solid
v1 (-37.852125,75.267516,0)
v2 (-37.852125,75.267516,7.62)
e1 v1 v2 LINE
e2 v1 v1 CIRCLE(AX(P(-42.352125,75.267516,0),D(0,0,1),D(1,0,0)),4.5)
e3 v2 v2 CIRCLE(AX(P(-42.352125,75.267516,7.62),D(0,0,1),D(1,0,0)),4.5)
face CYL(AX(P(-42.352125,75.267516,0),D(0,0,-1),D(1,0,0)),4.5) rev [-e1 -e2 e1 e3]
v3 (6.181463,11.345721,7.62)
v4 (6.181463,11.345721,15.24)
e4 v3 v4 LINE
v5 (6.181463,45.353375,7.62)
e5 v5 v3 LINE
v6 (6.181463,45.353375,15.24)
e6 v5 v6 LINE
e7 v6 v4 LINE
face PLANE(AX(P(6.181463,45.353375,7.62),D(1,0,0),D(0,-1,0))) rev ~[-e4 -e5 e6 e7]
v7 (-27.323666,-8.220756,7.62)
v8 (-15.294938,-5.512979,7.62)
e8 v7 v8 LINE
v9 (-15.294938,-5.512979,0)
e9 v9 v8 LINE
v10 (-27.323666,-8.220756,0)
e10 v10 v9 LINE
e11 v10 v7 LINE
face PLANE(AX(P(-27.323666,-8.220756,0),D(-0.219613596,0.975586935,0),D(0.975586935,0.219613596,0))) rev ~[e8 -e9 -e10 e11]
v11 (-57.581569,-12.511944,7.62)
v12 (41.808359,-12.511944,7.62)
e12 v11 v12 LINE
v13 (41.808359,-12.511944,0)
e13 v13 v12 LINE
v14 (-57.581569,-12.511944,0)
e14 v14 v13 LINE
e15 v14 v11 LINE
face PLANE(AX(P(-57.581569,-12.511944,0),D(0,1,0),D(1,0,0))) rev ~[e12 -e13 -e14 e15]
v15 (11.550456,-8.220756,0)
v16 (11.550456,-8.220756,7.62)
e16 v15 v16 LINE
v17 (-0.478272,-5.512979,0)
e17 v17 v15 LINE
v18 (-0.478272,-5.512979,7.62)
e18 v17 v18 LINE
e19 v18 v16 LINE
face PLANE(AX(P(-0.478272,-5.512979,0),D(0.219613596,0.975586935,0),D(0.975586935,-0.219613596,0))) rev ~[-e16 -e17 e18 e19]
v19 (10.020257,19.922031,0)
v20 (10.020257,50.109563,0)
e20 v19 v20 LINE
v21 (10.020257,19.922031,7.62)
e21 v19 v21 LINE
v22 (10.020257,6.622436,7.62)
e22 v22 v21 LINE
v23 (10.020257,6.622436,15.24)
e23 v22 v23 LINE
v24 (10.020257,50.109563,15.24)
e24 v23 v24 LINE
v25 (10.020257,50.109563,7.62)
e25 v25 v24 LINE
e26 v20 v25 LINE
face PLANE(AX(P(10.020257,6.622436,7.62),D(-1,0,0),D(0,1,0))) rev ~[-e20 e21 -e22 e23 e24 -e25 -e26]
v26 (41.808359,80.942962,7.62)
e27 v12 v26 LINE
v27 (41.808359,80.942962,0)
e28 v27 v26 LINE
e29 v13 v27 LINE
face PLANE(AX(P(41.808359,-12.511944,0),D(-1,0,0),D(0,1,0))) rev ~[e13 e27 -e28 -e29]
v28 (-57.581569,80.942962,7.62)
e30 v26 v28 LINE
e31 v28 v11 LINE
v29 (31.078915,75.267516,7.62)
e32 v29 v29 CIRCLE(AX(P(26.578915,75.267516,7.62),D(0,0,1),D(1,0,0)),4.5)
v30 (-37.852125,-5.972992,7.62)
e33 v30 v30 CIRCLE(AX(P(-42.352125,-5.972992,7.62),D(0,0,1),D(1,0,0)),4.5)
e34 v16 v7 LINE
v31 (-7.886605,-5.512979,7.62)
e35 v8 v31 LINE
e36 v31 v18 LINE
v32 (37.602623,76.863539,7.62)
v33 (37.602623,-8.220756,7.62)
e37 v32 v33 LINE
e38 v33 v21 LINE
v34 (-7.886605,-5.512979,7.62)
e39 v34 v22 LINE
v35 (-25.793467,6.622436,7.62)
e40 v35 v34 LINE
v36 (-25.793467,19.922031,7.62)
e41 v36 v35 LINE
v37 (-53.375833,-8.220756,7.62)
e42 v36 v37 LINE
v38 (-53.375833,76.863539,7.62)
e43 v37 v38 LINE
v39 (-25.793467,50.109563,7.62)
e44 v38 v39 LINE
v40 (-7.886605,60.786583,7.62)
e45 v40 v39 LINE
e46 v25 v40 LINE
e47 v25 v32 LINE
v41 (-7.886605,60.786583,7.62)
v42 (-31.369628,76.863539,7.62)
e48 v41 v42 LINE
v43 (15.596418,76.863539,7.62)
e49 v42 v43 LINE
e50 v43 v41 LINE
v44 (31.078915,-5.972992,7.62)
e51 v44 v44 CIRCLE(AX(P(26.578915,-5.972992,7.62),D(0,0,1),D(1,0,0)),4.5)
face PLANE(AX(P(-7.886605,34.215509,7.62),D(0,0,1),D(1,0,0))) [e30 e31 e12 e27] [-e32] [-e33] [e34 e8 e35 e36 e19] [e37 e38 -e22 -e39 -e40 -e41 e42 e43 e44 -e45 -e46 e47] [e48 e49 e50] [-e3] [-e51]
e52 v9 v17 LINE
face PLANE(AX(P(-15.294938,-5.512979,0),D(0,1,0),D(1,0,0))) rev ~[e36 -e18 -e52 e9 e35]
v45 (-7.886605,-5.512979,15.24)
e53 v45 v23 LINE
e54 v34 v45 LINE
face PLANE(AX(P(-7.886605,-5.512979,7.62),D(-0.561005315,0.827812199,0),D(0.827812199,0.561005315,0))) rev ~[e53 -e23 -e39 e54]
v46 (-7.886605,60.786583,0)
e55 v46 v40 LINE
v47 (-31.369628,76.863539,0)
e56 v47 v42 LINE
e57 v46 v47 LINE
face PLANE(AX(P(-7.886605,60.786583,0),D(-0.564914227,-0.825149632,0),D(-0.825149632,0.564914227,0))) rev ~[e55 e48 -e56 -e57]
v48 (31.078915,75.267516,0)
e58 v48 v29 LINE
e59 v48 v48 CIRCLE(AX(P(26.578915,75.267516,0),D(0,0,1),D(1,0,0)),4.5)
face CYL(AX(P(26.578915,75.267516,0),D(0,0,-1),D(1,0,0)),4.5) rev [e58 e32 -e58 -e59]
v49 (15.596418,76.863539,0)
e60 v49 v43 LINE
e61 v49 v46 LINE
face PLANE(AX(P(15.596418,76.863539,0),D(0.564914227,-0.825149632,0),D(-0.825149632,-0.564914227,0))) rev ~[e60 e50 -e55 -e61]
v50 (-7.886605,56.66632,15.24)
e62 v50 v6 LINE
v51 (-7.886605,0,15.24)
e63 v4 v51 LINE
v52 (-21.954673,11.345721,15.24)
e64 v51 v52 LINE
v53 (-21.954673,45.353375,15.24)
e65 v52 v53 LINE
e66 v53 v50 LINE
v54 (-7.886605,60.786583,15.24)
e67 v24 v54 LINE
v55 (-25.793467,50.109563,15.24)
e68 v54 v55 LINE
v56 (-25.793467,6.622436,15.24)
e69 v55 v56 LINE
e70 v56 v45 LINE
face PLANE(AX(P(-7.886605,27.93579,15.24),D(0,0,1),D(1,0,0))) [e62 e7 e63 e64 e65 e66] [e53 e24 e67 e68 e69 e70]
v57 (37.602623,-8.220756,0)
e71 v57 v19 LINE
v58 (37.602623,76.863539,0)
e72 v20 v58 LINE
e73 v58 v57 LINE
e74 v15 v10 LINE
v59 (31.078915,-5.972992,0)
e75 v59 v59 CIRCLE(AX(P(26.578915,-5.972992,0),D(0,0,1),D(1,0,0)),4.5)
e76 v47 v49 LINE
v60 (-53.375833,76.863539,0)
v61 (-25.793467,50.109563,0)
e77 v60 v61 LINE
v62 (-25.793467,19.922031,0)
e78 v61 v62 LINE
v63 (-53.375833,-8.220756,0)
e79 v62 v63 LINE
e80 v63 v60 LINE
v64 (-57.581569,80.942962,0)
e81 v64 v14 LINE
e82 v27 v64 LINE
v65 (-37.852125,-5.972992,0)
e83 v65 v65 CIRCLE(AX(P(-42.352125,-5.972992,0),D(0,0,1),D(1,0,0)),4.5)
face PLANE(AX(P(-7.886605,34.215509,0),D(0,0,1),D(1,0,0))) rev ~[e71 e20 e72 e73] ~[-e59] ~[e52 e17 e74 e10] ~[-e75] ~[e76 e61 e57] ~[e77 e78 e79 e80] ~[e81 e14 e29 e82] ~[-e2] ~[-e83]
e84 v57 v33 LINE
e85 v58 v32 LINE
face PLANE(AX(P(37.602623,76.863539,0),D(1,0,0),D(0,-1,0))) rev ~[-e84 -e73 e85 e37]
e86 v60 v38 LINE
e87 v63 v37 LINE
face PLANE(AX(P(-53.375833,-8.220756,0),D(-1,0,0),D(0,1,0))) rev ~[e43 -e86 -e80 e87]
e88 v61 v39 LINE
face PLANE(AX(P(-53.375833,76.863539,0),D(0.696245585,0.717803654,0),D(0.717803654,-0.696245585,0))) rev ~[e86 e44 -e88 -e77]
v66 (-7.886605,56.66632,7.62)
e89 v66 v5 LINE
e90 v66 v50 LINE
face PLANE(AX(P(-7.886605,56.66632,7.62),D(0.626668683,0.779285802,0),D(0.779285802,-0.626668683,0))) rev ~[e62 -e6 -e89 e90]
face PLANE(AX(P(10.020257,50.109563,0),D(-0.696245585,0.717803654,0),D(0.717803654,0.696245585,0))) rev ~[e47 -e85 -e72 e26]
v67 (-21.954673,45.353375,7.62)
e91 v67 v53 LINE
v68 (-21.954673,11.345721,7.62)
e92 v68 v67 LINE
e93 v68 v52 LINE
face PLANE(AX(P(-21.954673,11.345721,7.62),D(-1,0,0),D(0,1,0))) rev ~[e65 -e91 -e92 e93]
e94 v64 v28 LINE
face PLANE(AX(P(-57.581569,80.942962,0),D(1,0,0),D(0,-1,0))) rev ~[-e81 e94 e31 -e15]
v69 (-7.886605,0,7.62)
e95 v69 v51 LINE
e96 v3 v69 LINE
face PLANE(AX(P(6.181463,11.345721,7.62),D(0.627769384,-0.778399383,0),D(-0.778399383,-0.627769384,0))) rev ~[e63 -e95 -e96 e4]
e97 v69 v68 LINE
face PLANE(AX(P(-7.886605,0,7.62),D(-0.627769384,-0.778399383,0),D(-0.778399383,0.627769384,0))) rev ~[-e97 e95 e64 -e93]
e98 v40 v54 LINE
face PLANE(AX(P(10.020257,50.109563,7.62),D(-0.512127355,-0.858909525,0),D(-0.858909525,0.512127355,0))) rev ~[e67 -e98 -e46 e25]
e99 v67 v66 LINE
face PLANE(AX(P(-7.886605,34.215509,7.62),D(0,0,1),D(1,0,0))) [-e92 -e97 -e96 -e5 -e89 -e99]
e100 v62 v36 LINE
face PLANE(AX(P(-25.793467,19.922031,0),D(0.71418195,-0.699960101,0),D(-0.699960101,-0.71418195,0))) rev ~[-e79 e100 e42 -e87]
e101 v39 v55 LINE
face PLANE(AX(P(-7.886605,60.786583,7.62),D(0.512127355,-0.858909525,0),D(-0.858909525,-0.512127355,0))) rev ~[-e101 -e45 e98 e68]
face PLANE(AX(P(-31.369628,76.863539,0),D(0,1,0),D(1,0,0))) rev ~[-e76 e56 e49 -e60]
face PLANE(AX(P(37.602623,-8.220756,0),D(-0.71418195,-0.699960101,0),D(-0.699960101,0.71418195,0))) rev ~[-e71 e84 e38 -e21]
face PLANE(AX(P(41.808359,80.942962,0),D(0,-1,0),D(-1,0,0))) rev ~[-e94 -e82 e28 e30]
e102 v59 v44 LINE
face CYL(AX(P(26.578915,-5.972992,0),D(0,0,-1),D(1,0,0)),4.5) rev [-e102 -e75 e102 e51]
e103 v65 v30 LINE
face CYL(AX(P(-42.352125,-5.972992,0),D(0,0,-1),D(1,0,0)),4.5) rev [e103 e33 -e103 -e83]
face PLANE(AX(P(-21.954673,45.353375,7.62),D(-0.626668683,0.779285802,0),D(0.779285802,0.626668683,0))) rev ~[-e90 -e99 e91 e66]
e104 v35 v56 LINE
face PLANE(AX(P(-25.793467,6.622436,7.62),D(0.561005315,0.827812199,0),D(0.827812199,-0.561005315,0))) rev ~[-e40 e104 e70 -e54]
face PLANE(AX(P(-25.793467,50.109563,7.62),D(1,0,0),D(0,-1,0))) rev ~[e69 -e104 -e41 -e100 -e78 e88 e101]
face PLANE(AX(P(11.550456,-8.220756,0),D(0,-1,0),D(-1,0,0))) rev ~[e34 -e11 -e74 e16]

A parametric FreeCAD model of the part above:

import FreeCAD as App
import Part
import Sketcher

V = App.Vector
Q = App.Units.Quantity

doc = App.newDocument("Part")
body = doc.addObject("PartDesign::Body", "Body")

sketch1 = body.newObject("Sketcher::SketchObject", "Sketch")
sketch1.AttachmentSupport = (doc.getObject("XY_Plane"), [""])
sketch1.MapMode = "FlatFace"
sketch1.addGeometry([
    Part.LineSegment(V(41.8, -12.5, 0), V(41.8, 80.9, 0)),
    Part.LineSegment(V(41.8, 80.9, 0), V(-57.6, 80.9, 0)),
    Part.LineSegment(V(-57.6, 80.9, 0), V(-57.6, -12.5, 0)),
    Part.LineSegment(V(-57.6, -12.5, 0), V(41.8, -12.5, 0)),
    Part.Circle(V(-42.4, -6, 0), V(0, 0, 1), 4.5),
    Part.LineSegment(V(-25.8, 50.1, 0), V(-25.8, 19.9, 0)),
    Part.LineSegment(V(-25.8, 19.9, 0), V(-53.4, -8.2, 0)),
    Part.LineSegment(V(-53.4, -8.2, 0), V(-53.4, 76.9, 0)),
    Part.LineSegment(V(-53.4, 76.9, 0), V(-25.8, 50.1, 0)),
    Part.LineSegment(V(11.6, -8.2, 0), V(-27.3, -8.2, 0)),
    Part.LineSegment(V(-27.3, -8.2, 0), V(-15.3, -5.5, 0)),
    Part.LineSegment(V(-15.3, -5.5, 0), V(-0.5, -5.5, 0)),
    Part.LineSegment(V(-0.5, -5.5, 0), V(11.6, -8.2, 0)),
    Part.Circle(V(26.6, -6, 0), V(0, 0, 1), 4.5),
    Part.LineSegment(V(37.6, 76.9, 0), V(37.6, -8.2, 0)),
    Part.LineSegment(V(37.6, -8.2, 0), V(10, 19.9, 0)),
    Part.LineSegment(V(10, 19.9, 0), V(10, 50.1, 0)),
    Part.LineSegment(V(10, 50.1, 0), V(37.6, 76.9, 0)),
    Part.Circle(V(-42.4, 75.3, 0), V(0, 0, 1), 4.5),
    Part.LineSegment(V(-7.9, 60.8, 0), V(-31.4, 76.9, 0)),
    Part.LineSegment(V(-31.4, 76.9, 0), V(15.6, 76.9, 0)),
    Part.LineSegment(V(15.6, 76.9, 0), V(-7.9, 60.8, 0)),
    Part.Circle(V(26.6, 75.3, 0), V(0, 0, 1), 4.5),
], False)
sketch1.addConstraint([
    Sketcher.Constraint("Coincident", 0, 2, 1, 1),
    Sketcher.Constraint("Coincident", 1, 2, 2, 1),
    Sketcher.Constraint("Coincident", 2, 2, 3, 1),
    Sketcher.Constraint("Coincident", 3, 2, 0, 1),
    Sketcher.Constraint("Coincident", 5, 2, 6, 1),
    Sketcher.Constraint("Coincident", 6, 2, 7, 1),
    Sketcher.Constraint("Coincident", 7, 2, 8, 1),
    Sketcher.Constraint("Coincident", 8, 2, 5, 1),
    Sketcher.Constraint("Coincident", 9, 2, 10, 1),
    Sketcher.Constraint("Coincident", 10, 2, 11, 1),
    Sketcher.Constraint("Coincident", 11, 2, 12, 1),
    Sketcher.Constraint("Coincident", 12, 2, 9, 1),
    Sketcher.Constraint("Coincident", 14, 2, 15, 1),
    Sketcher.Constraint("Coincident", 15, 2, 16, 1),
    Sketcher.Constraint("Coincident", 16, 2, 17, 1),
    Sketcher.Constraint("Coincident", 17, 2, 14, 1),
    Sketcher.Constraint("Coincident", 19, 2, 20, 1),
    Sketcher.Constraint("Coincident", 20, 2, 21, 1),
    Sketcher.Constraint("Coincident", 21, 2, 19, 1),
    Sketcher.Constraint("Vertical", 0),
    Sketcher.Constraint("Horizontal", 1),
    Sketcher.Constraint("Vertical", 2),
    Sketcher.Constraint("Horizontal", 3),
    Sketcher.Constraint("Vertical", 5),
    Sketcher.Constraint("Vertical", 7),
    Sketcher.Constraint("Horizontal", 9),
    Sketcher.Constraint("Horizontal", 11),
    Sketcher.Constraint("Vertical", 14),
    Sketcher.Constraint("Vertical", 16),
    Sketcher.Constraint("Horizontal", 20),
    Sketcher.Constraint("Equal", 4, 13),
    Sketcher.Constraint("Equal", 13, 18),
    Sketcher.Constraint("Equal", 18, 22),
    Sketcher.Constraint("Horizontal", 4, 3, 13, 3),
    Sketcher.Constraint("Horizontal", 18, 3, 22, 3),
    Sketcher.Constraint("Horizontal", 6, 2, 9, 2),
    Sketcher.Constraint("Horizontal", 12, 2, 14, 2),
    Sketcher.Constraint("Horizontal", 5, 2, 15, 2),
    Sketcher.Constraint("Horizontal", 8, 2, 16, 2),
    Sketcher.Constraint("Horizontal", 7, 2, 17, 2),
    Sketcher.Constraint("Horizontal", 17, 2, 19, 2),
    Sketcher.Constraint("Vertical", 4, 3, 18, 3),
    Sketcher.Constraint("Vertical", 13, 3, 22, 3),
    Sketcher.Constraint("Equal", 10, 12),
    Sketcher.Constraint("Equal", 6, 15),
    Sketcher.Constraint("Equal", 19, 21),
    Sketcher.Constraint("Diameter", 4, Q("9 mm")),
    Sketcher.Constraint("DistanceX", 9, 2, 9, 1, Q("38.874122 mm")),
    Sketcher.Constraint("DistanceY", 8, 2, 1, 2, Q("30.833398 mm")),
    Sketcher.Constraint("DistanceX", 9, 2, 5, 2, Q("1.530199 mm")),
    Sketcher.Constraint("DistanceX", 15, 2, 12, 2, Q("1.530199 mm")),
    Sketcher.Constraint("Distance", 8, Q("38.426061 mm")),
    Sketcher.Constraint("Distance", 19, Q("28.459109 mm")),
    Sketcher.Constraint("DistanceX", 1, 2, 1, 1, Q("99.389928 mm")),
    Sketcher.Constraint("DistanceX", 11, 1, 11, 2, Q("14.816666 mm")),
    Sketcher.Constraint("DistanceX", 20, 1, 20, 2, Q("46.966047 mm")),
    Sketcher.Constraint("DistanceY", 0, 1, 0, 2, Q("93.454906 mm")),
    Sketcher.Constraint("DistanceY", 5, 2, 5, 1, Q("30.187532 mm")),
    Sketcher.Constraint("DistanceY", 7, 1, 7, 2, Q("85.084295 mm")),
    Sketcher.Constraint("DistanceX", -1, 1, 0, 2, Q("41.808359 mm")),
    Sketcher.Constraint("DistanceY", -1, 1, 0, 2, Q("80.942962 mm")),
    Sketcher.Constraint("DistanceY", -1, 1, 7, 2, Q("76.863539 mm")),
    Sketcher.Constraint("DistanceX", 10, 2, -1, 1, Q("15.294938 mm")),
    Sketcher.Constraint("DistanceY", 10, 2, -1, 1, Q("5.512979 mm")),
    Sketcher.Constraint("DistanceX", 19, 2, -1, 1, Q("31.369628 mm")),
    Sketcher.Constraint("DistanceX", 4, 3, 13, 3, Q("68.93104 mm")),
    Sketcher.Constraint("DistanceY", 4, 3, 18, 3, Q("81.240508 mm")),
    Sketcher.Constraint("DistanceY", 2, 2, 18, 3, Q("87.77946 mm")),
    Sketcher.Constraint("DistanceX", 4, 3, 5, 2, Q("16.558658 mm")),
])
pad1 = body.newObject("PartDesign::Pad", "Pad")
pad1.Profile = sketch1
pad1.Length = 7.62

sketch2 = body.newObject("Sketcher::SketchObject", "Sketch001")
sketch2.AttachmentSupport = (doc.getObject("XY_Plane"), [""])
sketch2.MapMode = "FlatFace"
sketch2.AttachmentOffset = App.Placement(V(0, 0, 7.62), App.Rotation())
sketch2.addGeometry([
    Part.LineSegment(V(-8, 61, 0), V(-26, 50, 0)),
    Part.LineSegment(V(-26, 50, 0), V(-26, 7, 0)),
    Part.LineSegment(V(-26, 7, 0), V(-8, -6, 0)),
    Part.LineSegment(V(-8, -6, 0), V(10, 7, 0)),
    Part.LineSegment(V(10, 7, 0), V(10, 50, 0)),
    Part.LineSegment(V(10, 50, 0), V(-8, 61, 0)),
    Part.LineSegment(V(-22, 11, 0), V(-22, 45, 0)),
    Part.LineSegment(V(-22, 45, 0), V(-8, 57, 0)),
    Part.LineSegment(V(-8, 57, 0), V(6, 45, 0)),
    Part.LineSegment(V(6, 45, 0), V(6, 11, 0)),
    Part.LineSegment(V(6, 11, 0), V(-8, 0, 0)),
    Part.LineSegment(V(-8, 0, 0), V(-22, 11, 0)),
], False)
sketch2.addConstraint([
    Sketcher.Constraint("Coincident", 0, 2, 1, 1),
    Sketcher.Constraint("Coincident", 1, 2, 2, 1),
    Sketcher.Constraint("Coincident", 2, 2, 3, 1),
    Sketcher.Constraint("Coincident", 3, 2, 4, 1),
    Sketcher.Constraint("Coincident", 4, 2, 5, 1),
    Sketcher.Constraint("Coincident", 5, 2, 0, 1),
    Sketcher.Constraint("Coincident", 6, 2, 7, 1),
    Sketcher.Constraint("Coincident", 7, 2, 8, 1),
    Sketcher.Constraint("Coincident", 8, 2, 9, 1),
    Sketcher.Constraint("Coincident", 9, 2, 10, 1),
    Sketcher.Constraint("Coincident", 10, 2, 11, 1),
    Sketcher.Constraint("Coincident", 11, 2, 6, 1),
    Sketcher.Constraint("Vertical", 1),
    Sketcher.Constraint("Vertical", 4),
    Sketcher.Constraint("Vertical", 6),
    Sketcher.Constraint("Vertical", 9),
    Sketcher.Constraint("PointOnObject", 10, 2, -1),
    Sketcher.Constraint("Horizontal", 1, 2, 3, 2),
    Sketcher.Constraint("Horizontal", 0, 2, 4, 2),
    Sketcher.Constraint("Horizontal", 6, 2, 8, 2),
    Sketcher.Constraint("Horizontal", 9, 2, 11, 2),
    Sketcher.Constraint("Vertical", 2, 2, 5, 2),
    Sketcher.Constraint("Vertical", 5, 2, 7, 2),
    Sketcher.Constraint("Vertical", 7, 2, 10, 2),
    Sketcher.Constraint("Equal", 2, 3),
    Sketcher.Constraint("Equal", 7, 8),
    Sketcher.Constraint("DistanceY", 2, 2, 9, 2, Q("16.8587 mm")),
    Sketcher.Constraint("Distance", 2, Q("21.631551 mm")),
    Sketcher.Constraint("Distance", 10, Q("18.073071 mm")),
    Sketcher.Constraint("DistanceY", 1, 2, 1, 1, Q("43.487127 mm")),
    Sketcher.Constraint("DistanceY", 6, 1, 6, 2, Q("34.007655 mm")),
    Sketcher.Constraint("DistanceY", 2, 2, -1, 1, Q("5.512979 mm")),
    Sketcher.Constraint("DistanceY", -1, 1, 7, 2, Q("56.66632 mm")),
    Sketcher.Constraint("DistanceX", 1, 2, 2, 2, Q("17.906862 mm")),
    Sketcher.Constraint("DistanceY", 4, 2, 5, 2, Q("10.677019 mm")),
    Sketcher.Constraint("DistanceX", 0, 2, -1, 1, Q("25.793467 mm")),
])
pad2 = body.newObject("PartDesign::Pad", "Pad001")
pad2.Profile = sketch2
pad2.Length = 7.62

doc.recompute()
